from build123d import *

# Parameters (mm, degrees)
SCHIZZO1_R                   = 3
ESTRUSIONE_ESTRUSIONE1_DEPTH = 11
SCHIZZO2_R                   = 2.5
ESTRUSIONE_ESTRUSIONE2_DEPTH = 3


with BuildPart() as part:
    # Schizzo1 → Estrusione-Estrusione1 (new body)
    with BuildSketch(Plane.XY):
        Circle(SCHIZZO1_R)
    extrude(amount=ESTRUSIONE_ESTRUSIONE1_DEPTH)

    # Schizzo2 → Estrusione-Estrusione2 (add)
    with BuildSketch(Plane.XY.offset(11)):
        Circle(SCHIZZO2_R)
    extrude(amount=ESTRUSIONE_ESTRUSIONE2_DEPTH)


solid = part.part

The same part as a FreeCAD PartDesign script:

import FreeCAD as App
import Part
import Sketcher
Q = App.Units.Quantity

doc = App.newDocument("Part")
params = doc.addObject("Spreadsheet::Sheet", "Params")
for row, (alias, value) in enumerate([
    ("sketch1_diameter", "6 mm"),
    ("pad1_length", "11 mm"),
    ("sketch2_diameter", "5 mm"),
    ("pad2_length", "3 mm"),
], start=1):
    params.set(f"A{row}", alias)
    params.set(f"B{row}", "=" + value)
    params.setAlias(f"B{row}", alias)

body = doc.addObject("PartDesign::Body", "Body")

# Sketch on XY plane
sketch1 = body.newObject("Sketcher::SketchObject", "Sketch")
sketch1.AttachmentSupport = (doc.getObject("XY_Plane"), [""])
sketch1.MapMode = "FlatFace"
sketch1.addGeometry(Part.Circle(App.Vector(0, 0, 0), App.Vector(0, 0, 1), 3), False)
sketch1.addConstraint([
    Sketcher.Constraint("Coincident", 0, 3, -1, 1),
    Sketcher.Constraint("Diameter", 0, Q("6 mm")),
])
sketch1.setExpression("Constraints[1]", "Params.sketch1_diameter")
pad1 = body.newObject("PartDesign::Pad", "Pad")
pad1.Profile = sketch1
pad1.setExpression("Length", "Params.pad1_length")

# Sketch on XY plane
sketch2 = body.newObject("Sketcher::SketchObject", "Sketch001")
sketch2.AttachmentSupport = (doc.getObject("XY_Plane"), [""])
sketch2.MapMode = "FlatFace"
sketch2.AttachmentOffset = App.Placement(App.Vector(0, 0, 11), App.Rotation())
sketch2.addGeometry(Part.Circle(App.Vector(0, 0, 0), App.Vector(0, 0, 1), 2.5), False)
sketch2.addConstraint([
    Sketcher.Constraint("Coincident", 0, 3, -1, 1),
    Sketcher.Constraint("Diameter", 0, Q("5 mm")),
])
sketch2.setExpression("Constraints[1]", "Params.sketch2_diameter")
pad2 = body.newObject("PartDesign::Pad", "Pad001")
pad2.Profile = sketch2
pad2.setExpression("Length", "Params.pad2_length")

doc.recompute()
